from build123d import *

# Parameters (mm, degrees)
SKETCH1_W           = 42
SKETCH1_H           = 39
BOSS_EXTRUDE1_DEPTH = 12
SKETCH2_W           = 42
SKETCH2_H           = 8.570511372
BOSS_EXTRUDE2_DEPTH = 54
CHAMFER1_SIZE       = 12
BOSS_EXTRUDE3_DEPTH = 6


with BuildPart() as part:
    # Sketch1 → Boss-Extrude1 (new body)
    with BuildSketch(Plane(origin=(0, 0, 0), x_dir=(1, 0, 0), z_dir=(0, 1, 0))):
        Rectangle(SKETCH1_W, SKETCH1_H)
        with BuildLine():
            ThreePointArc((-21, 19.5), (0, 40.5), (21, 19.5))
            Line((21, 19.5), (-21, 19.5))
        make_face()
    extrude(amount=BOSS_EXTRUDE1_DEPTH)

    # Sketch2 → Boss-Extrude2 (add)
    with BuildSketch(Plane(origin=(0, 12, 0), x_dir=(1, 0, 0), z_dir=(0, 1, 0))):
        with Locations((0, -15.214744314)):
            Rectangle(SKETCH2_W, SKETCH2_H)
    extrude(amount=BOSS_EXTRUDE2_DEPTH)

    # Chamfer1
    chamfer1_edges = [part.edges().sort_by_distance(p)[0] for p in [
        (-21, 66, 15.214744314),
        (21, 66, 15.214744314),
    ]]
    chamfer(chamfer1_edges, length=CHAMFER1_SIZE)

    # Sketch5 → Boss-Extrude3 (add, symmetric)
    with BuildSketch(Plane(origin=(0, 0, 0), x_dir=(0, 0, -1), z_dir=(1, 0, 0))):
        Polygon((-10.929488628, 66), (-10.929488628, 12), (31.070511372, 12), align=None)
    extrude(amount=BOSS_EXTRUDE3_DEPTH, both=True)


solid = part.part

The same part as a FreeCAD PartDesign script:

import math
import FreeCAD as App
import Part
import Sketcher
from FreeCAD import Vector


def edges_at(feature, points):
    """Names of the edges that pass closest to the given points."""
    edges = feature.Shape.Edges
    near = lambda p: min(range(len(edges)), key=lambda i: edges[i].distToShape(Part.Vertex(*p))[0])
    return sorted({f"Edge{near(p) + 1}" for p in points})


def add_polygon(sketch, points):
    """Adds a closed chain of lines whose ends are joined by coincident constraints."""
    first, n = sketch.GeometryCount, len(points)
    for a, b in zip(points, points[1:] + points[:1]):
        sketch.addGeometry(Part.LineSegment(App.Vector(*a, 0), App.Vector(*b, 0)), False)
    for i in range(n):
        sketch.addConstraint(Sketcher.Constraint("Coincident", first + i, 2, first + (i + 1) % n, 1))

doc = App.newDocument("Part")
params = doc.addObject("Spreadsheet::Sheet", "Params")
for row, (alias, value) in enumerate([
    ("sketch1_radius", "21 mm"),
    ("sketch1_height", "39 mm"),
    ("pad1_length", "12 mm"),
    ("sketch2_width", "42 mm"),
    ("pad2_length", "54 mm"),
    ("chamfer_size", "12 mm"),
    ("sketch3_width", "54 mm"),
    ("sketch3_height", "42 mm"),
    ("pad3_length", "12 mm"),
], start=1):
    params.set(f"A{row}", alias)
    params.set(f"B{row}", "=" + value)
    params.setAlias(f"B{row}", alias)

body = doc.addObject("PartDesign::Body", "Body")

# Sketch on XZ plane
sketch1 = body.newObject("Sketcher::SketchObject", "Sketch")
sketch1.AttachmentSupport = (doc.getObject("XZ_Plane"), [""])
sketch1.MapMode = "FlatFace"
sketch1.addGeometry([
    Part.LineSegment(Vector(-21, -19.5, 0), Vector(-21, 19.5, 0)),
    Part.LineSegment(Vector(-21, 19.5, 0), Vector(21, 19.5, 0)),
    Part.LineSegment(Vector(21, 19.5, 0), Vector(21, -19.5, 0)),
    Part.ArcOfCircle(Part.Circle(Vector(0, -19.5, 0), Vector(0, 0, 1), 21), math.radians(180), math.radians(360)),
], False)
sketch1.addConstraint([
    Sketcher.Constraint("Coincident", 0, 2, 1, 1),
    Sketcher.Constraint("Coincident", 1, 2, 2, 1),
    Sketcher.Constraint("Tangent", 2, 2, 3, 2),
    Sketcher.Constraint("Tangent", 3, 1, 0, 1),
    Sketcher.Constraint("Vertical", 0),
    Sketcher.Constraint("Horizontal", 1),
    Sketcher.Constraint("Vertical", 2),
    Sketcher.Constraint("Symmetric", 0, 2, 2, 2, -1, 1),
    Sketcher.Constraint("Radius", 3, 21.0),
    Sketcher.Constraint("DistanceY", 0, 1, 0, 2, 39.0),
])
sketch1.setExpression("Constraints[8]", "Params.sketch1_radius")
sketch1.setExpression("Constraints[9]", "Params.sketch1_height")
pad1 = body.newObject("PartDesign::Pad", "Pad")
pad1.Profile = sketch1
pad1.setExpression("Length", "Params.pad1_length")
pad1.Reversed = True

# Sketch on XZ plane
sketch2 = body.newObject("Sketcher::SketchObject", "Sketch001")
sketch2.AttachmentSupport = (doc.getObject("XZ_Plane"), [""])
sketch2.MapMode = "FlatFace"
sketch2.AttachmentOffset = App.Placement(Vector(0, 0, -12), App.Rotation())
add_polygon(sketch2, [(-21, 10.929489), (-21, 19.5), (21, 19.5), (21, 10.929489)])  # lines 0-3
sketch2.addConstraint([
    Sketcher.Constraint("Vertical", 0),
    Sketcher.Constraint("Horizontal", 1),
    Sketcher.Constraint("Vertical", 2),
    Sketcher.Constraint("Horizontal", 3),
    Sketcher.Constraint("DistanceX", 1, 1, 1, 2, 42.0),
    Sketcher.Constraint("DistanceX", 0, 2, -1, 1, 21.0),
    Sketcher.Constraint("DistanceY", -1, 1, 0, 2, 19.5),
    Sketcher.Constraint("DistanceY", 0, 1, 0, 2, 8.570511),
])
sketch2.setExpression("Constraints[8]", "Params.sketch2_width")
pad2 = body.newObject("PartDesign::Pad", "Pad001")
pad2.Profile = sketch2
pad2.setExpression("Length", "Params.pad2_length")
pad2.Reversed = True
doc.recompute()

chamfer = body.newObject("PartDesign::Chamfer", "Chamfer")
chamfer.Base = (pad2, edges_at(pad2, [(-21, 66, 15.215), (21, 66, 15.215)]))
chamfer.setExpression("Size", "Params.chamfer_size")

# Sketch on YZ plane
sketch3 = body.newObject("Sketcher::SketchObject", "Sketch002")
sketch3.AttachmentSupport = (doc.getObject("YZ_Plane"), [""])
sketch3.MapMode = "FlatFace"
add_polygon(sketch3, [(66, 10.929489), (12, 10.929489), (12, -31.070511)])  # lines 0-2
sketch3.addConstraint([
    Sketcher.Constraint("Horizontal", 0),
    Sketcher.Constraint("Vertical", 1),
    Sketcher.Constraint("DistanceX", 0, 2, 0, 1, 54.0),
    Sketcher.Constraint("DistanceY", 1, 2, 1, 1, 42.0),
    Sketcher.Constraint("DistanceX", -1, 1, 0, 2, 12.0),
    Sketcher.Constraint("DistanceY", -1, 1, 0, 2, 10.929489),
])
sketch3.setExpression("Constraints[5]", "Params.sketch3_width")
sketch3.setExpression("Constraints[6]", "Params.sketch3_height")
pad3 = body.newObject("PartDesign::Pad", "Pad002")
pad3.Profile = sketch3
pad3.setExpression("Length", "Params.pad3_length")
pad3.Midplane = True

doc.recompute()
